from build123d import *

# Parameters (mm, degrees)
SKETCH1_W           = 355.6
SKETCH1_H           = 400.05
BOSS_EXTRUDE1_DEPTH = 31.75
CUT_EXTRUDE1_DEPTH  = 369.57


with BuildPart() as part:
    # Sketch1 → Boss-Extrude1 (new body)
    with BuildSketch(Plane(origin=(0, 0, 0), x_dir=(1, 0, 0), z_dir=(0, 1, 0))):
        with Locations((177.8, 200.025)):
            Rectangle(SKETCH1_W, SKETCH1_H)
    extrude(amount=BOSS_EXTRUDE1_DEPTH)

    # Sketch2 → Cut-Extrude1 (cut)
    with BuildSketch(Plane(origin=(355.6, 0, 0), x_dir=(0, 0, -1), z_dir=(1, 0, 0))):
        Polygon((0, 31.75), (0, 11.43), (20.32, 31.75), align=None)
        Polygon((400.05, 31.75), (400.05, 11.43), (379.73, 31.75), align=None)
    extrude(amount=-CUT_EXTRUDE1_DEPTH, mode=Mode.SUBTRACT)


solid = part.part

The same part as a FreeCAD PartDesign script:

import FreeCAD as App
import Part
import Sketcher

V = App.Vector
Q = App.Units.Quantity


def add_polygon(sketch, points):
    """Adds a closed chain of lines whose ends are joined by coincident constraints."""
    first, n = sketch.GeometryCount, len(points)
    for a, b in zip(points, points[1:] + points[:1]):
        sketch.addGeometry(Part.LineSegment(App.Vector(*a, 0), App.Vector(*b, 0)), False)
    for i in range(n):
        sketch.addConstraint(Sketcher.Constraint("Coincident", first + i, 2, first + (i + 1) % n, 1))

doc = App.newDocument("Part")
body = doc.addObject("PartDesign::Body", "Body")

sketch1 = body.newObject("Sketcher::SketchObject", "Sketch")
sketch1.AttachmentSupport = (doc.getObject("XZ_Plane"), [""])
sketch1.MapMode = "FlatFace"
add_polygon(sketch1, [(0, -400.05), (0, 0), (355.6, 0), (355.6, -400.05)])
sketch1.addConstraint([
    Sketcher.Constraint("Vertical", 0),
    Sketcher.Constraint("Horizontal", 1),
    Sketcher.Constraint("Vertical", 2),
    Sketcher.Constraint("Horizontal", 3),
    Sketcher.Constraint("Coincident", 0, 2, -1, 1),
    Sketcher.Constraint("DistanceX", 1, 1, 1, 2, Q("14 in")),
    Sketcher.Constraint("DistanceY", 0, 1, 0, 2, Q("15.75 in")),
])
pad1 = body.newObject("PartDesign::Pad", "Pad")
pad1.Profile = sketch1
pad1.Length = Q("1.25 in")
pad1.Reversed = True

sketch2 = body.newObject("Sketcher::SketchObject", "Sketch001")
sketch2.AttachmentSupport = (doc.getObject("YZ_Plane"), [""])
sketch2.MapMode = "FlatFace"
sketch2.AttachmentOffset = App.Placement(V(0, 0, 14 * 25.4), App.Rotation())
add_polygon(sketch2, [(31.75, 0), (11.43, 0), (31.75, -20.32)])
add_polygon(sketch2, [(11.43, -400.05), (31.75, -400.05), (31.75, -379.73)])
sketch2.addConstraint([
    Sketcher.Constraint("Horizontal", 0),
    Sketcher.Constraint("Vertical", 2),
    Sketcher.Constraint("Horizontal", 3),
    Sketcher.Constraint("Vertical", 4),
    Sketcher.Constraint("PointOnObject", 0, 2, -1),
    Sketcher.Constraint("Perpendicular", 1, 5),
    Sketcher.Constraint("Vertical", 2, 2, 3, 2),
    Sketcher.Constraint("Vertical", 0, 2, 5, 2),
    Sketcher.Constraint("Equal", 3, 2),
    Sketcher.Constraint("DistanceX", 0, 2, 0, 1, Q("0.8 in")),
    Sketcher.Constraint("DistanceX", -1, 1, 0, 2, Q("0.45 in")),
    Sketcher.Constraint("DistanceY", 3, 2, -1, 1, Q("15.75 in")),
])
pocket1 = body.newObject("PartDesign::Pocket", "Pocket")
pocket1.Profile = sketch2
pocket1.Length = Q("14.55 in")

doc.recompute()
